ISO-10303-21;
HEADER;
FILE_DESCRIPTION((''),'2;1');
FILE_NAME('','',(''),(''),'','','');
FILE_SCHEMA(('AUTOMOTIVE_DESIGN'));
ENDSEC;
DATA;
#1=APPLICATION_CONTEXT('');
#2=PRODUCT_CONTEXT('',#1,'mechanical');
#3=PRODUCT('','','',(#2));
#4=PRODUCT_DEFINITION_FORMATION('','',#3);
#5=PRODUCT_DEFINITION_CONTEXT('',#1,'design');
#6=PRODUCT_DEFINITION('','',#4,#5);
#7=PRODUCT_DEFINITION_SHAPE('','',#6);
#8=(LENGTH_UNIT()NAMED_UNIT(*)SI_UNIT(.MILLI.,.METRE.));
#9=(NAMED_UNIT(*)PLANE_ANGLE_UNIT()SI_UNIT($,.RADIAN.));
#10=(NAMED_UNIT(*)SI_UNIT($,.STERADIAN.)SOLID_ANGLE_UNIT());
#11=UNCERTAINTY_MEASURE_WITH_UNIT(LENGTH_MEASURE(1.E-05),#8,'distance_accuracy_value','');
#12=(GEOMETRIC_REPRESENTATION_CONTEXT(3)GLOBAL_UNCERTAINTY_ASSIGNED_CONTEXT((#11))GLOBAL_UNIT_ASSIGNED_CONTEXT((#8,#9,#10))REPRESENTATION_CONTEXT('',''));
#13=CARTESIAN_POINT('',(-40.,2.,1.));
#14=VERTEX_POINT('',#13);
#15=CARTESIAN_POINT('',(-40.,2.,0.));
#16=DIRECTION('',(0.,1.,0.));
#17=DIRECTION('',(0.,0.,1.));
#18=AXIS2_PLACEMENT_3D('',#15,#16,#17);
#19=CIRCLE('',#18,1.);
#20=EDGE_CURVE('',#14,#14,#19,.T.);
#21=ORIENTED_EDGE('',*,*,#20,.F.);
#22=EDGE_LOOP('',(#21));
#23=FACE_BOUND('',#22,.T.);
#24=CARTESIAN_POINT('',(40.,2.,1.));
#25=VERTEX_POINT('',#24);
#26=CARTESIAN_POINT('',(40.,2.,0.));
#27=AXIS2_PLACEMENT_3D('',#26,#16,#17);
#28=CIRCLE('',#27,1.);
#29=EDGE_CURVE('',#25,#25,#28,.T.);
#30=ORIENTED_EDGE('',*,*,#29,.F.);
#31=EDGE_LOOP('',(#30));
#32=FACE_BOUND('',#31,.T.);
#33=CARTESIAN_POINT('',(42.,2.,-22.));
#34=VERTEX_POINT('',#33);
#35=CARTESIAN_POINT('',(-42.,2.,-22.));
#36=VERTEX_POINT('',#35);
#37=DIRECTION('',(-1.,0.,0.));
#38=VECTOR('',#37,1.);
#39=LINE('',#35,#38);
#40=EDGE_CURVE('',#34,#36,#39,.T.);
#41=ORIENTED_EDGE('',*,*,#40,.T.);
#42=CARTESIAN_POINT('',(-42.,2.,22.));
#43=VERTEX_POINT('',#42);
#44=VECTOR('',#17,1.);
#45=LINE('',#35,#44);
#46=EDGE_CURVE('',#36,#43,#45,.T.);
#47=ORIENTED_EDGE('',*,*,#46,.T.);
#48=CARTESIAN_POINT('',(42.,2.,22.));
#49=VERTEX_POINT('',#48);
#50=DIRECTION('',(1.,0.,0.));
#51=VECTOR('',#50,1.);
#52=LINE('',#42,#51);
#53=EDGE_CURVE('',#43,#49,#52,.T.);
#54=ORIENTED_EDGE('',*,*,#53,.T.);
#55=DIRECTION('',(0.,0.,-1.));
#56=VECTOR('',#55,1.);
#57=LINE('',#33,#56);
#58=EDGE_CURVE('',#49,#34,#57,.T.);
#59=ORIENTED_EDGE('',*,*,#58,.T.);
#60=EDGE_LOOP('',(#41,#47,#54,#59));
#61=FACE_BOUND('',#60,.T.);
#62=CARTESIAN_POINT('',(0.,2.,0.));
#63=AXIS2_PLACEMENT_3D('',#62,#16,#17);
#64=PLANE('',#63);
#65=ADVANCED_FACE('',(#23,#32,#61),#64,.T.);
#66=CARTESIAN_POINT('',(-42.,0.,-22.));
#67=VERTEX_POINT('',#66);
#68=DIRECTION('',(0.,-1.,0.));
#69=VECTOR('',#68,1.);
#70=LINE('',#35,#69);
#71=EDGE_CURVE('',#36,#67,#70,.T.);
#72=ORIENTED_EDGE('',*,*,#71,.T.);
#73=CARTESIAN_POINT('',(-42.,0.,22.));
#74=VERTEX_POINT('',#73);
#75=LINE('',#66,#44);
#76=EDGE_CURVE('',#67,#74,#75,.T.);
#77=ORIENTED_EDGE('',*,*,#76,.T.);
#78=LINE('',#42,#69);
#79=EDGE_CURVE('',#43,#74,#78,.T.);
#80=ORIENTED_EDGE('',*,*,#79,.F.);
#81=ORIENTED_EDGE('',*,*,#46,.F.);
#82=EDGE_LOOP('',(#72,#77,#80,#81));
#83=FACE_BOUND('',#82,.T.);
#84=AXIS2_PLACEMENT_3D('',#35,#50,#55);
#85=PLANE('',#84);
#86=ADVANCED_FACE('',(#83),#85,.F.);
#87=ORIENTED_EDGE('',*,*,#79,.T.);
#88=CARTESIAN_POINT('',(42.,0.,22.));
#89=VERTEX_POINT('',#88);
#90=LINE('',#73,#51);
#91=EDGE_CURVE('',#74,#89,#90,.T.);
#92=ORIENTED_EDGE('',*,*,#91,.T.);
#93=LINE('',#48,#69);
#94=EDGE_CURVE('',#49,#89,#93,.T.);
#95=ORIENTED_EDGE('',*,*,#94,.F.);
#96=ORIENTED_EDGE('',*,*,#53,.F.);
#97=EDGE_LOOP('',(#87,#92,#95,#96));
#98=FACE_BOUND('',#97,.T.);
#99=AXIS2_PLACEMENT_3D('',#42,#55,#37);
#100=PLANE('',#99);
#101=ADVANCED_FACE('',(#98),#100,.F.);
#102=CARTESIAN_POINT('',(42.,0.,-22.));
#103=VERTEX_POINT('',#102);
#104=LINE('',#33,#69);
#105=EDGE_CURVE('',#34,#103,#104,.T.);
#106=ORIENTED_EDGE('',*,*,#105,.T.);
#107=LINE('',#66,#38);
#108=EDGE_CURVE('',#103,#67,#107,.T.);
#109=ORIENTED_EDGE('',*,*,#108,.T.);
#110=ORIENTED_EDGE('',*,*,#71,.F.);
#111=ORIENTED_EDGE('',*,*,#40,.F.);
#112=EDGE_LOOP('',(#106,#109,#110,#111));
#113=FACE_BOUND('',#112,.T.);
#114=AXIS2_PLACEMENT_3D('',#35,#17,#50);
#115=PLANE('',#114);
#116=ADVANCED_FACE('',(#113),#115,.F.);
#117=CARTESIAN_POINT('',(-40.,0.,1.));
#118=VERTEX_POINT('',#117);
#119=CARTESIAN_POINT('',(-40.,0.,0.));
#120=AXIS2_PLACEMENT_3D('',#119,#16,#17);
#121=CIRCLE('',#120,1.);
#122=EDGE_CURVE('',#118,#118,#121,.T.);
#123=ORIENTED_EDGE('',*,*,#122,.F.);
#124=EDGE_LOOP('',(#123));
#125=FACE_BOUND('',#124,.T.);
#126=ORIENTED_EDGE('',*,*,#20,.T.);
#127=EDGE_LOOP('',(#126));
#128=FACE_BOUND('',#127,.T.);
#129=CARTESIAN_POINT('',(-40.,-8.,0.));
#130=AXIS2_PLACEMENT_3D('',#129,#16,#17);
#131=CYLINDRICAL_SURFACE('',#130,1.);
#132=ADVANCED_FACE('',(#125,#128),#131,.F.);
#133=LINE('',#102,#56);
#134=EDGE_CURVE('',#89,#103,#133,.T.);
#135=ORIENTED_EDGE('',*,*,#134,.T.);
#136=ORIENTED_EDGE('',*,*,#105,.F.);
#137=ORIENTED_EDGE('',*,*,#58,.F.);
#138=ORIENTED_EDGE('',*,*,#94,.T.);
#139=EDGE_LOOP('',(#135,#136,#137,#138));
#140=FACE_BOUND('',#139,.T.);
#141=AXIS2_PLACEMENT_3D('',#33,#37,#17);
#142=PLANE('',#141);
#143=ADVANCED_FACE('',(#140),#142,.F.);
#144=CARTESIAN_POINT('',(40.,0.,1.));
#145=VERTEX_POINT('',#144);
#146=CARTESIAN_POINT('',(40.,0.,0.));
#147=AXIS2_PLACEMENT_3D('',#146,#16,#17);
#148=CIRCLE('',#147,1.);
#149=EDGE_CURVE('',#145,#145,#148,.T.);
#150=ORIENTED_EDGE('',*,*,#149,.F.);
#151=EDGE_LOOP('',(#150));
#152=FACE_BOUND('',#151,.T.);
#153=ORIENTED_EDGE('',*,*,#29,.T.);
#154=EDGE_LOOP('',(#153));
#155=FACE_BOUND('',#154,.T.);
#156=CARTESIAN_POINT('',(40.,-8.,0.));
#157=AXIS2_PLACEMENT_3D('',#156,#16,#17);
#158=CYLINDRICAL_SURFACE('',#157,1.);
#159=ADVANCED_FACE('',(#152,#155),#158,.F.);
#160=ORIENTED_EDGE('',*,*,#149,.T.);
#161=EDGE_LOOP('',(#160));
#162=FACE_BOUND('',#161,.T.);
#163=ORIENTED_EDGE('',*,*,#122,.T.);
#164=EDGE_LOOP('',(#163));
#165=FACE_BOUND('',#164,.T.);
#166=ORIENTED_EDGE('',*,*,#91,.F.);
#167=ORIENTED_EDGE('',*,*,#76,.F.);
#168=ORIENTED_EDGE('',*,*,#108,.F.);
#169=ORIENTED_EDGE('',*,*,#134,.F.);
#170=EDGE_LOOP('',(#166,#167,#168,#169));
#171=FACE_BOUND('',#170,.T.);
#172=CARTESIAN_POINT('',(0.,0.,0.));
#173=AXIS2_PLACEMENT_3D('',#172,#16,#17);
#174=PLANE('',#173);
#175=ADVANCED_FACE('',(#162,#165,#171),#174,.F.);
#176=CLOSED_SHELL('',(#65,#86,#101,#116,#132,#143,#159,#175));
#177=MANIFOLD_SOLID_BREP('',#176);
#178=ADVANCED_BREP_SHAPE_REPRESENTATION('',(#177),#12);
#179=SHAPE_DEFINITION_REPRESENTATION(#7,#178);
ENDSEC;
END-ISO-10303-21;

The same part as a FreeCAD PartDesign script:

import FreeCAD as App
import Part
import Sketcher

V = App.Vector


def add_polygon(sketch, points):
    """Adds a closed chain of lines whose ends are joined by coincident constraints."""
    first, n = sketch.GeometryCount, len(points)
    for a, b in zip(points, points[1:] + points[:1]):
        sketch.addGeometry(Part.LineSegment(App.Vector(*a, 0), App.Vector(*b, 0)), False)
    for i in range(n):
        sketch.addConstraint(Sketcher.Constraint("Coincident", first + i, 2, first + (i + 1) % n, 1))

doc = App.newDocument("Part")
params = doc.addObject("Spreadsheet::Sheet", "Params")
for row, (alias, value) in enumerate([
    ("sketch1_width", "84 mm"),
    ("sketch1_height", "44 mm"),
    ("pad1_length", "2 mm"),
    ("sketch2_diameter", "2 mm"),
    ("pocket1_length", "10 mm"),
], start=1):
    params.set(f"A{row}", alias)
    params.set(f"B{row}", "=" + value)
    params.setAlias(f"B{row}", alias)

body = doc.addObject("PartDesign::Body", "Body")

sketch1 = body.newObject("Sketcher::SketchObject", "Sketch")
sketch1.AttachmentSupport = (doc.getObject("XZ_Plane"), [""])
sketch1.MapMode = "FlatFace"
add_polygon(sketch1, [(-42, -22), (-42, 22), (42, 22), (42, -22)])
sketch1.addConstraint([
    Sketcher.Constraint("Vertical", 0),
    Sketcher.Constraint("Horizontal", 1),
    Sketcher.Constraint("Vertical", 2),
    Sketcher.Constraint("Horizontal", 3),
    Sketcher.Constraint("Symmetric", 0, 2, 2, 2, -1, 1),
    Sketcher.Constraint("DistanceX", 1, 1, 1, 2, 84.0),
    Sketcher.Constraint("DistanceY", 0, 1, 0, 2, 44.0),
])
sketch1.setExpression("Constraints[9]", "Params.sketch1_width")
sketch1.setExpression("Constraints[10]", "Params.sketch1_height")
pad1 = body.newObject("PartDesign::Pad", "Pad")
pad1.Profile = sketch1
pad1.setExpression("Length", "Params.pad1_length")
pad1.Reversed = True

sketch2 = body.newObject("Sketcher::SketchObject", "Sketch001")
sketch2.AttachmentSupport = (doc.getObject("XZ_Plane"), [""])
sketch2.MapMode = "FlatFace"
sketch2.AttachmentOffset = App.Placement(V(0, 0, -2), App.Rotation())
sketch2.addGeometry([
    Part.Circle(V(-40, 0, 0), V(0, 0, 1), 1),
    Part.Circle(V(40, 0, 0), V(0, 0, 1), 1),
], False)
sketch2.addConstraint([
    Sketcher.Constraint("Equal", 0, 1),
    Sketcher.Constraint("Symmetric", 0, 3, 1, 3, -1, 1),
    Sketcher.Constraint("PointOnObject", 0, 3, -1),
    Sketcher.Constraint("Diameter", 0, 2.0),
    Sketcher.Constraint("DistanceX", 0, 3, -1, 1, 40.0),
])
sketch2.setExpression("Constraints[3]", "Params.sketch2_diameter")
pocket1 = body.newObject("PartDesign::Pocket", "Pocket")
pocket1.Profile = sketch2
pocket1.setExpression("Length", "Params.pocket1_length")
pocket1.Reversed = True

doc.recompute()
